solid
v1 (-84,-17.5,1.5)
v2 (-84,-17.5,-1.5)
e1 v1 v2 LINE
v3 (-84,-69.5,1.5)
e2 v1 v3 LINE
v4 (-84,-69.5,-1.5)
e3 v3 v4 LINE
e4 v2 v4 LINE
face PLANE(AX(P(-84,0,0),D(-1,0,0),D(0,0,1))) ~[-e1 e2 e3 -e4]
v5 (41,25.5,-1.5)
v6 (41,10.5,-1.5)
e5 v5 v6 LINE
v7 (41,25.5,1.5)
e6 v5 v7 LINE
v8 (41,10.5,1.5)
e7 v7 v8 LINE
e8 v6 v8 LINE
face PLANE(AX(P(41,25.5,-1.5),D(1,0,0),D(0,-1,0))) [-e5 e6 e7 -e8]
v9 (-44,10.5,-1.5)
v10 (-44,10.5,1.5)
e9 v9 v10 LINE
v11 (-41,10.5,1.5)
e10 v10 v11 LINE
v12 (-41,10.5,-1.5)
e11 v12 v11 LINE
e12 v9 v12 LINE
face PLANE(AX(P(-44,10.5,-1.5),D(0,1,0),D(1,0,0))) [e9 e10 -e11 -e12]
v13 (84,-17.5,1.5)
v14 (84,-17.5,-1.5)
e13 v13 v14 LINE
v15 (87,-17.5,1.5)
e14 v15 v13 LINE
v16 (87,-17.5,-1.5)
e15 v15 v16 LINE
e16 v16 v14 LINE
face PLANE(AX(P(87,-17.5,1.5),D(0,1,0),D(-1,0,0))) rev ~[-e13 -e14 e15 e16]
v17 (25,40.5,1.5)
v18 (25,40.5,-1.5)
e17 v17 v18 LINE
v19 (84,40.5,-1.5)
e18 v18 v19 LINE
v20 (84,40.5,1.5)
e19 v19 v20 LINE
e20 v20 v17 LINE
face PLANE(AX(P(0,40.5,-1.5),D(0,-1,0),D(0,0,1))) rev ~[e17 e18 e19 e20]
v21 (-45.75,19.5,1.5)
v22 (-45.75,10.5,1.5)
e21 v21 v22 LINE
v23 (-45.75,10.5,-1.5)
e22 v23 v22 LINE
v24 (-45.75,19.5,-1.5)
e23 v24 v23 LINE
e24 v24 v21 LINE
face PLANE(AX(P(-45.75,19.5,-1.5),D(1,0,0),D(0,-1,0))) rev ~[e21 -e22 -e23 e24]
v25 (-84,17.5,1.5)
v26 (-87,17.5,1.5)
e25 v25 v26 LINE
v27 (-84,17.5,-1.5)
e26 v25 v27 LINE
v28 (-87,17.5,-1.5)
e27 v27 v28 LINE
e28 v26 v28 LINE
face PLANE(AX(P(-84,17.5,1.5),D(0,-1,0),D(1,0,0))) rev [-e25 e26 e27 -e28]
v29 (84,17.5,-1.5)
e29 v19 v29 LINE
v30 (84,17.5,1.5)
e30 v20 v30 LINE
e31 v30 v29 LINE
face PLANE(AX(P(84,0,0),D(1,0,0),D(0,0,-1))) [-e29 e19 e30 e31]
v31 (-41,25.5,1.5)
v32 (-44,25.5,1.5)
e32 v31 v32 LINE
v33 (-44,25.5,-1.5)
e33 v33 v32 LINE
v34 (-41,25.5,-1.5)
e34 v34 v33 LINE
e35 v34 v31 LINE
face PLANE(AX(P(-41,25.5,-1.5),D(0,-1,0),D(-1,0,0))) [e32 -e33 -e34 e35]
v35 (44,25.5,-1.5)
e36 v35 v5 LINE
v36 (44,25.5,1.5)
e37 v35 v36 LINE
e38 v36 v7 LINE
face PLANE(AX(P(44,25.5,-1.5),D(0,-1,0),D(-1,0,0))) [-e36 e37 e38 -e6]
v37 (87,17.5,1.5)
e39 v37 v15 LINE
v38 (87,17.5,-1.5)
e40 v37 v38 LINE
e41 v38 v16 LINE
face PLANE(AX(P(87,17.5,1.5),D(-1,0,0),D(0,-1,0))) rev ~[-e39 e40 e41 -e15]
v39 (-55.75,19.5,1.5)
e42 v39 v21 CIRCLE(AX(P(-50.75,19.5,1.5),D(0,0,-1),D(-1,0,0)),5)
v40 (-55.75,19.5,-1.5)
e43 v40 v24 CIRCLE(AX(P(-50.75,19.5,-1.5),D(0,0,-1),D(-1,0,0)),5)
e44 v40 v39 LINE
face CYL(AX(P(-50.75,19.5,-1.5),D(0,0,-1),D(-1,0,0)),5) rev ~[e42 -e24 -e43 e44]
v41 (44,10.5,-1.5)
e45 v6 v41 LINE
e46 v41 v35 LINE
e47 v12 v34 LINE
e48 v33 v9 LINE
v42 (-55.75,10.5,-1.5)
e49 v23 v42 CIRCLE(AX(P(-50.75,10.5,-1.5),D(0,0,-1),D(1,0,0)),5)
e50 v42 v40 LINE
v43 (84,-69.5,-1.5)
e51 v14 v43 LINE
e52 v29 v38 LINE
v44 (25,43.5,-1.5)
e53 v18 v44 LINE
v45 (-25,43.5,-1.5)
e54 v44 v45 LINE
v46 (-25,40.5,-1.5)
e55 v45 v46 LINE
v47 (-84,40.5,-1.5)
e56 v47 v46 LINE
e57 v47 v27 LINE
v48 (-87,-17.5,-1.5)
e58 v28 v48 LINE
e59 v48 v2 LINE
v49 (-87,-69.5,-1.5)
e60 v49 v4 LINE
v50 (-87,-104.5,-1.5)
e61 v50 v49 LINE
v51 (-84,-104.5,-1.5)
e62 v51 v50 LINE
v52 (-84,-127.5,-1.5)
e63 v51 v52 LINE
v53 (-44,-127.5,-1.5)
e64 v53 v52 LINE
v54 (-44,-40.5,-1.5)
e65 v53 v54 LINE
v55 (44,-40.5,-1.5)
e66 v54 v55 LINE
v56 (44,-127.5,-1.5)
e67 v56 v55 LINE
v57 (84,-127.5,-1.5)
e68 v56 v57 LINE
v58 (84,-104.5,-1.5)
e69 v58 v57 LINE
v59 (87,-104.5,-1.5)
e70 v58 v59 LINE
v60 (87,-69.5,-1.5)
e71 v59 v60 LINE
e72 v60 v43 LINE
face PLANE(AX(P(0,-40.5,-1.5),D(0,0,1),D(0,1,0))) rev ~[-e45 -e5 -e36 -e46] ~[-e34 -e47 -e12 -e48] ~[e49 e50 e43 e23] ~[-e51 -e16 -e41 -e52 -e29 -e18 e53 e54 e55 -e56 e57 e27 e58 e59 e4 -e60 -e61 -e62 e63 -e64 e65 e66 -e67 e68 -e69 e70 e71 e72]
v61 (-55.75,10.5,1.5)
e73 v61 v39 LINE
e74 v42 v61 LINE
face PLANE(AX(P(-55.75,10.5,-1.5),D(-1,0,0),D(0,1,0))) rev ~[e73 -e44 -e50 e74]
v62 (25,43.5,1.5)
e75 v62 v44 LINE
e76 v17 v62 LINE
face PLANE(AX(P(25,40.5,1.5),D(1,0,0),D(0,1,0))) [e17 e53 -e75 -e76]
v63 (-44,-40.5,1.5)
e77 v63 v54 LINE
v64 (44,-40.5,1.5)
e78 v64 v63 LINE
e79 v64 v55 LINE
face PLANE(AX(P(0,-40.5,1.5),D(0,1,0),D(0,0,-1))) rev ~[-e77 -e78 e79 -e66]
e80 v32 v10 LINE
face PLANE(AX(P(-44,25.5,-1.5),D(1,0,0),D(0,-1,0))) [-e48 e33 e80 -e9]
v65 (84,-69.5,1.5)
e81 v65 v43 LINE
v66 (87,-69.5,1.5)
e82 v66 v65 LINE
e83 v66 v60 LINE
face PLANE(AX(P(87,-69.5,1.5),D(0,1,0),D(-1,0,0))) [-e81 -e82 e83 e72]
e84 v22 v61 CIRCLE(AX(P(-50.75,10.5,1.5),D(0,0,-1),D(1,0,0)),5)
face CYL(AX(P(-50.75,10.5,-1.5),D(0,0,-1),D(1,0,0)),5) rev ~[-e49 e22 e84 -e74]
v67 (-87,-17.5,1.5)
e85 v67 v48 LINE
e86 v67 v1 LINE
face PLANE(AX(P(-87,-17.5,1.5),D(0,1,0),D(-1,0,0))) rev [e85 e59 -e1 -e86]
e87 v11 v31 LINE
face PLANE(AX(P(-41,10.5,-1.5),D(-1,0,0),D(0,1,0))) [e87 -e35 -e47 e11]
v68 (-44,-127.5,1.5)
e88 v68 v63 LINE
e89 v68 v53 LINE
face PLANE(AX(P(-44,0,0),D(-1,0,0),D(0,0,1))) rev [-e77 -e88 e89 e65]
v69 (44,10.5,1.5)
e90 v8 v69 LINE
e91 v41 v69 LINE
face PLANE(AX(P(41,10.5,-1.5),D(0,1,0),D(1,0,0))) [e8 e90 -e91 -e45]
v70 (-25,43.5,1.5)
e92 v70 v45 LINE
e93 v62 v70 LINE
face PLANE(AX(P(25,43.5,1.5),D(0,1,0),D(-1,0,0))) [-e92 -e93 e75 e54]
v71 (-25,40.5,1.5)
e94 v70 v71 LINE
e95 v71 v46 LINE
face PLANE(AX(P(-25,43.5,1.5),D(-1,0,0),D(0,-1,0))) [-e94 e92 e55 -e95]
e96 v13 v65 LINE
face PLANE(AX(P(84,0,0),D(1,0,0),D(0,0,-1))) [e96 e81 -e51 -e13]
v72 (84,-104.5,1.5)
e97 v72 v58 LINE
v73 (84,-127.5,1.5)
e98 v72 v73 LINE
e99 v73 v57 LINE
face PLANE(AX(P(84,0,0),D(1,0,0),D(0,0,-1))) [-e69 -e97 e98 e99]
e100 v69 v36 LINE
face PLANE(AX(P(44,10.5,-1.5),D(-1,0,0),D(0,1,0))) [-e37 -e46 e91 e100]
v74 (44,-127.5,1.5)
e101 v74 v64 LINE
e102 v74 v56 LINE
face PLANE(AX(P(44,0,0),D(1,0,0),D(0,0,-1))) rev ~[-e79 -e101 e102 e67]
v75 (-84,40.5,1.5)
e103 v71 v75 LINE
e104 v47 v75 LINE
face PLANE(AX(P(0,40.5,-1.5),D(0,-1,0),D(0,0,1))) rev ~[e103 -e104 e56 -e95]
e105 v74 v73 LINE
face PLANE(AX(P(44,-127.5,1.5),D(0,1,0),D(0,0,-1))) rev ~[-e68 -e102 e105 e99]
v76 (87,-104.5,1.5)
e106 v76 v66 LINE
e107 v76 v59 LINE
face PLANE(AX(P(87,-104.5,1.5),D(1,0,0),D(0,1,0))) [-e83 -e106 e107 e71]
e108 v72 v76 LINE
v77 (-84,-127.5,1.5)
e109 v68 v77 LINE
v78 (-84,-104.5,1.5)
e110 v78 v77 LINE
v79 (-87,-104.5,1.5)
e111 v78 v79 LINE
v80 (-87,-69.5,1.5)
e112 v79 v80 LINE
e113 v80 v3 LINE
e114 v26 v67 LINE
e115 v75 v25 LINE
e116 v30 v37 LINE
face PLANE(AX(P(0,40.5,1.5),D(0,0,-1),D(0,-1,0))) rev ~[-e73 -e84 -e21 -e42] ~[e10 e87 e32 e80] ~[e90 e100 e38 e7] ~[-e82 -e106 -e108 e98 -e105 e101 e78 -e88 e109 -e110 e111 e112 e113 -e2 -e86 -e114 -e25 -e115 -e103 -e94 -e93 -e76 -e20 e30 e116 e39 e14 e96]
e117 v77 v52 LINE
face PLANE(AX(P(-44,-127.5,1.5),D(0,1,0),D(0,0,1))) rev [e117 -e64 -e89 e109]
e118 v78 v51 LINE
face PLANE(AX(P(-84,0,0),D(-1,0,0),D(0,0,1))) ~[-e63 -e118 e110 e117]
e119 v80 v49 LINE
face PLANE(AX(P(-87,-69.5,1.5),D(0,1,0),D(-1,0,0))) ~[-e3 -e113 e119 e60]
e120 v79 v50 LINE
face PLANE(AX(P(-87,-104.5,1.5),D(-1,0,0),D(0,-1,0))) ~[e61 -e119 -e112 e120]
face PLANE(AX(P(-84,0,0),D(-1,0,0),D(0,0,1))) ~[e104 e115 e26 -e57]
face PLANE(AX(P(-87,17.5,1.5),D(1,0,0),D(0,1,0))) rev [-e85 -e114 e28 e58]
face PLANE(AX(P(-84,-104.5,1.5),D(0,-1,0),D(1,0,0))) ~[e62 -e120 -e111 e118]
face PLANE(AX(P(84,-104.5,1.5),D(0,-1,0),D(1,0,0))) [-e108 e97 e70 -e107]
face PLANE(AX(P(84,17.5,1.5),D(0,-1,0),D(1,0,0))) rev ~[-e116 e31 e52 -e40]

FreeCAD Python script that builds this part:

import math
import FreeCAD as App
import Part
import Sketcher

V = App.Vector


def add_polygon(sketch, points):
    """Adds a closed chain of lines whose ends are joined by coincident constraints."""
    first, n = sketch.GeometryCount, len(points)
    for a, b in zip(points, points[1:] + points[:1]):
        sketch.addGeometry(Part.LineSegment(App.Vector(*a, 0), App.Vector(*b, 0)), False)
    for i in range(n):
        sketch.addConstraint(Sketcher.Constraint("Coincident", first + i, 2, first + (i + 1) % n, 1))

doc = App.newDocument("Part")
body = doc.addObject("PartDesign::Body", "Body")

# Sketch on YZ plane
sketch1 = doc.addObject("Sketcher::SketchObject", "Sketch")
body.addObject(sketch1)
sketch1.AttachmentSupport = (doc.YZ_Plane, [""])
sketch1.MapMode = "FlatFace"
add_polygon(sketch1, [(-40.5, 1.5), (-40.5, -1.5), (40.5, -1.5), (40.5, 1.5)])  # lines 0-3
sketch1.addConstraint(Sketcher.Constraint("Vertical", 0))
sketch1.addConstraint(Sketcher.Constraint("Horizontal", 1))
sketch1.addConstraint(Sketcher.Constraint("Vertical", 2))
sketch1.addConstraint(Sketcher.Constraint("Horizontal", 3))
sketch1.addConstraint(Sketcher.Constraint("Symmetric", 0, 2, 2, 2, -1, 1))
sketch1.addConstraint(Sketcher.Constraint("DistanceX", 1, 1, 1, 2, 81.0))
sketch1.addConstraint(Sketcher.Constraint("DistanceY", 0, 2, 0, 1, 3.0))
pad1 = doc.addObject("PartDesign::Pad", "Pad")
body.addObject(pad1)
pad1.Profile = sketch1
pad1.Length = 88
pad1.Midplane = True

# Sketch on YZ plane
sketch2 = doc.addObject("Sketcher::SketchObject", "Sketch001")
body.addObject(sketch2)
sketch2.AttachmentSupport = (doc.YZ_Plane, [""])
sketch2.MapMode = "FlatFace"
sketch2.AttachmentOffset = App.Placement(V(0, 0, 44), App.Rotation())
add_polygon(sketch2, [(40.5, -1.5), (40.5, 1.5), (-127.5, 1.5), (-127.5, -1.5)])  # lines 0-3
sketch2.addConstraint(Sketcher.Constraint("Vertical", 0))
sketch2.addConstraint(Sketcher.Constraint("Horizontal", 1))
sketch2.addConstraint(Sketcher.Constraint("Vertical", 2))
sketch2.addConstraint(Sketcher.Constraint("Horizontal", 3))
sketch2.addConstraint(Sketcher.Constraint("DistanceX", 1, 2, 1, 1, 168.0))
sketch2.addConstraint(Sketcher.Constraint("DistanceY", 0, 1, 0, 2, 3.0))
sketch2.addConstraint(Sketcher.Constraint("DistanceX", -1, 1, 0, 2, 40.5))
sketch2.addConstraint(Sketcher.Constraint("DistanceY", -1, 1, 0, 2, 1.5))
pad2 = doc.addObject("PartDesign::Pad", "Pad001")
body.addObject(pad2)
pad2.Profile = sketch2
pad2.Length = 40

# Sketch on XY plane
sketch3 = doc.addObject("Sketcher::SketchObject", "Sketch002")
body.addObject(sketch3)
sketch3.AttachmentSupport = (doc.XY_Plane, [""])
sketch3.MapMode = "FlatFace"
sketch3.AttachmentOffset = App.Placement(V(0, 0, 1.5), App.Rotation())
add_polygon(sketch3, [(87, -69.5), (84, -69.5), (84, -104.5), (87, -104.5)])  # lines 0-3
add_polygon(sketch3, [(84, -17.5), (87, -17.5), (87, 17.5), (84, 17.5)])  # lines 4-7
sketch3.addConstraint(Sketcher.Constraint("Horizontal", 0))
sketch3.addConstraint(Sketcher.Constraint("Vertical", 1))
sketch3.addConstraint(Sketcher.Constraint("Horizontal", 2))
sketch3.addConstraint(Sketcher.Constraint("Vertical", 3))
sketch3.addConstraint(Sketcher.Constraint("Horizontal", 4))
sketch3.addConstraint(Sketcher.Constraint("Vertical", 5))
sketch3.addConstraint(Sketcher.Constraint("Horizontal", 6))
sketch3.addConstraint(Sketcher.Constraint("Vertical", 7))
sketch3.addConstraint(Sketcher.Constraint("Vertical", 3, 2, 4, 2))
sketch3.addConstraint(Sketcher.Constraint("Vertical", 1, 2, 6, 2))
sketch3.addConstraint(Sketcher.Constraint("Equal", 3, 5))
sketch3.addConstraint(Sketcher.Constraint("DistanceX", 0, 2, 0, 1, 3.0))
sketch3.addConstraint(Sketcher.Constraint("DistanceY", 1, 2, 1, 1, 35.0))
sketch3.addConstraint(Sketcher.Constraint("DistanceX", -1, 1, 0, 2, 84.0))
sketch3.addConstraint(Sketcher.Constraint("DistanceY", 3, 2, 4, 2, 52.0))
sketch3.addConstraint(Sketcher.Constraint("DistanceY", 0, 2, -1, 1, 69.5))
pad3 = doc.addObject("PartDesign::Pad", "Pad002")
body.addObject(pad3)
pad3.Profile = sketch3
pad3.Length = 3
pad3.Reversed = True
doc.recompute()

mirrored = doc.addObject("PartDesign::Mirrored", "Mirrored")
body.addObject(mirrored)
mirrored.Originals = [pad2, pad3]
mirrored.MirrorPlane = (doc.YZ_Plane, [""])
body.Tip = mirrored

# Sketch on XY plane
sketch4 = doc.addObject("Sketcher::SketchObject", "Sketch003")
body.addObject(sketch4)
sketch4.AttachmentSupport = (doc.XY_Plane, [""])
sketch4.MapMode = "FlatFace"
sketch4.AttachmentOffset = App.Placement(V(0, 0, -1.5), App.Rotation())
add_polygon(sketch4, [(41, 25.5), (44, 25.5), (44, 10.5), (41, 10.5)])  # lines 0-3
add_polygon(sketch4, [(-44, 25.5), (-41, 25.5), (-41, 10.5), (-44, 10.5)])  # lines 4-7
sketch4.addConstraint(Sketcher.Constraint("Horizontal", 0))
sketch4.addConstraint(Sketcher.Constraint("Vertical", 1))
sketch4.addConstraint(Sketcher.Constraint("Horizontal", 2))
sketch4.addConstraint(Sketcher.Constraint("Vertical", 3))
sketch4.addConstraint(Sketcher.Constraint("Horizontal", 4))
sketch4.addConstraint(Sketcher.Constraint("Vertical", 5))
sketch4.addConstraint(Sketcher.Constraint("Horizontal", 6))
sketch4.addConstraint(Sketcher.Constraint("Vertical", 7))
sketch4.addConstraint(Sketcher.Constraint("Symmetric", 3, 2, 4, 2, -2))
sketch4.addConstraint(Sketcher.Constraint("Symmetric", 1, 2, 6, 2, -2))
sketch4.addConstraint(Sketcher.Constraint("DistanceX", 0, 1, 0, 2, 3.0))
sketch4.addConstraint(Sketcher.Constraint("DistanceY", 1, 2, 1, 1, 15.0))
sketch4.addConstraint(Sketcher.Constraint("DistanceX", -1, 1, 0, 2, 44.0))
sketch4.addConstraint(Sketcher.Constraint("DistanceY", -1, 1, 0, 2, 25.5))
pocket1 = doc.addObject("PartDesign::Pocket", "Pocket")
body.addObject(pocket1)
pocket1.Profile = sketch4
pocket1.Length = 10
pocket1.Reversed = True

# Sketch on XY plane
sketch5 = doc.addObject("Sketcher::SketchObject", "Sketch004")
body.addObject(sketch5)
sketch5.AttachmentSupport = (doc.XY_Plane, [""])
sketch5.MapMode = "FlatFace"
sketch5.AttachmentOffset = App.Placement(V(0, 0, -1.5), App.Rotation())
sketch5.addGeometry(Part.LineSegment(V(-46, 20, 0), V(-46, 10, 0)), False)
sketch5.addGeometry(Part.ArcOfCircle(Part.Circle(V(-51, 10, 0), V(0, 0, 1), 5), math.radians(180), math.radians(360)), False)
sketch5.addGeometry(Part.LineSegment(V(-56, 10, 0), V(-56, 20, 0)), False)
sketch5.addGeometry(Part.ArcOfCircle(Part.Circle(V(-51, 20, 0), V(0, 0, 1), 5), math.radians(0), math.radians(180)), False)
sketch5.addConstraint(Sketcher.Constraint("Tangent", 0, 2, 1, 2))
sketch5.addConstraint(Sketcher.Constraint("Tangent", 1, 1, 2, 1))
sketch5.addConstraint(Sketcher.Constraint("Tangent", 2, 2, 3, 2))
sketch5.addConstraint(Sketcher.Constraint("Tangent", 3, 1, 0, 1))
sketch5.addConstraint(Sketcher.Constraint("Vertical", 0))
sketch5.addConstraint(Sketcher.Constraint("Vertical", 2))
sketch5.addConstraint(Sketcher.Constraint("Radius", 1, 5.0))
sketch5.addConstraint(Sketcher.Constraint("DistanceY", 0, 2, 0, 1, 9.0))
sketch5.addConstraint(Sketcher.Constraint("DistanceY", -1, 1, 1, 3, 10.5))
sketch5.addConstraint(Sketcher.Constraint("DistanceX", 1, 3, -1, 1, 50.75))
pocket2 = doc.addObject("PartDesign::Pocket", "Pocket001")
body.addObject(pocket2)
pocket2.Profile = sketch5
pocket2.Length = 10
pocket2.Reversed = True

# Sketch on XY plane
sketch6 = doc.addObject("Sketcher::SketchObject", "Sketch005")
body.addObject(sketch6)
sketch6.AttachmentSupport = (doc.XY_Plane, [""])
sketch6.MapMode = "FlatFace"
sketch6.AttachmentOffset = App.Placement(V(0, 0, 1.5), App.Rotation())
add_polygon(sketch6, [(-25, 43.5), (-25, 40.5), (25, 40.5), (25, 43.5)])  # lines 0-3
sketch6.addConstraint(Sketcher.Constraint("Vertical", 0))
sketch6.addConstraint(Sketcher.Constraint("Horizontal", 1))
sketch6.addConstraint(Sketcher.Constraint("Vertical", 2))
sketch6.addConstraint(Sketcher.Constraint("Horizontal", 3))
sketch6.addConstraint(Sketcher.Constraint("DistanceX", 1, 1, 1, 2, 50.0))
sketch6.addConstraint(Sketcher.Constraint("DistanceY", 0, 2, 0, 1, 3.0))
sketch6.addConstraint(Sketcher.Constraint("DistanceX", 0, 2, -1, 1, 25.0))
sketch6.addConstraint(Sketcher.Constraint("DistanceY", -1, 1, 0, 2, 40.5))
pad4 = doc.addObject("PartDesign::Pad", "Pad003")
body.addObject(pad4)
pad4.Profile = sketch6
pad4.Length = 3
pad4.Reversed = True

doc.recompute()
